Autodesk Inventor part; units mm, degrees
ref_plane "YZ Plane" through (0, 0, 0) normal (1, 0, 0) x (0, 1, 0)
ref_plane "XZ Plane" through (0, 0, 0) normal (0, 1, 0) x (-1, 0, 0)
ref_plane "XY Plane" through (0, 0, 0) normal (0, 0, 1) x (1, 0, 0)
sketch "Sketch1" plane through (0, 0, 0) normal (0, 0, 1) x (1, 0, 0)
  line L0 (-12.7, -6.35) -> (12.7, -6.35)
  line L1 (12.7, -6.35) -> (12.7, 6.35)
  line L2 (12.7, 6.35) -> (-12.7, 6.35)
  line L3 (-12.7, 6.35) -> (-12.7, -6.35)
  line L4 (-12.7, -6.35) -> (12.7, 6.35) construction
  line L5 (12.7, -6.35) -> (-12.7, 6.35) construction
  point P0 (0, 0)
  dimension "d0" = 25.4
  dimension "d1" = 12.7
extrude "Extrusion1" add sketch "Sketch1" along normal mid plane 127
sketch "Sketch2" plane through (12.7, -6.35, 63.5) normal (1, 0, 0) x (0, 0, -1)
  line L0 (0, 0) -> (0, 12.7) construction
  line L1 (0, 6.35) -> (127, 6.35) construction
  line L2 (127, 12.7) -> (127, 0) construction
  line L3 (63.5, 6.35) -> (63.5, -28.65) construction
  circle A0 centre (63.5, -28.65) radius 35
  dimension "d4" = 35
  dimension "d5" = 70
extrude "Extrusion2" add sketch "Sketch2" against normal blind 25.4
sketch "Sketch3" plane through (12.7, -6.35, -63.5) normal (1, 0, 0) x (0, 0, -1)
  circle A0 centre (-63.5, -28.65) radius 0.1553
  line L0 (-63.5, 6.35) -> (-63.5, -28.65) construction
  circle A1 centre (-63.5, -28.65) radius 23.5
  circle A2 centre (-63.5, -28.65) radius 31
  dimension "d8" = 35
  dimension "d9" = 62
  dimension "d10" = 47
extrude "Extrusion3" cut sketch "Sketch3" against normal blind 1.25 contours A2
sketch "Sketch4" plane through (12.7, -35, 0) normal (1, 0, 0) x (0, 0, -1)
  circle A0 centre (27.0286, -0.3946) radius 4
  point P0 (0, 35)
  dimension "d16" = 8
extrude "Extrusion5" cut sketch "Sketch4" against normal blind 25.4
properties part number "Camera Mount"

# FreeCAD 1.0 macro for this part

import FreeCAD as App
import Part
import Sketcher
from FreeCAD import Vector
Q = App.Units.Quantity


def add_polygon(sketch, points):
    """Adds a closed chain of lines whose ends are joined by coincident constraints."""
    first, n = sketch.GeometryCount, len(points)
    for a, b in zip(points, points[1:] + points[:1]):
        sketch.addGeometry(Part.LineSegment(App.Vector(*a, 0), App.Vector(*b, 0)), False)
    for i in range(n):
        sketch.addConstraint(Sketcher.Constraint("Coincident", first + i, 2, first + (i + 1) % n, 1))

doc = App.newDocument("Part")
body = doc.addObject("PartDesign::Body", "Body")

# Sketch on XY plane
sketch1 = doc.addObject("Sketcher::SketchObject", "Sketch")
body.addObject(sketch1)
sketch1.AttachmentSupport = (doc.XY_Plane, [""])
sketch1.MapMode = "FlatFace"
add_polygon(sketch1, [(-12.7, 6.35), (-12.7, -6.35), (12.7, -6.35), (12.7, 6.35)])  # lines 0-3
sketch1.addConstraint([
    Sketcher.Constraint("Vertical", 0),
    Sketcher.Constraint("Horizontal", 1),
    Sketcher.Constraint("Vertical", 2),
    Sketcher.Constraint("Horizontal", 3),
    Sketcher.Constraint("Symmetric", 0, 2, 2, 2, -1, 1),
    Sketcher.Constraint("DistanceX", 1, 1, 1, 2, Q("1 in")),
    Sketcher.Constraint("DistanceY", 0, 2, 0, 1, Q("0.5 in")),
])
pad1 = doc.addObject("PartDesign::Pad", "Pad")
body.addObject(pad1)
pad1.Profile = sketch1
pad1.Length = Q("5 in")
pad1.Midplane = True

# Sketch on YZ plane
sketch2 = doc.addObject("Sketcher::SketchObject", "Sketch001")
body.addObject(sketch2)
sketch2.AttachmentSupport = (doc.YZ_Plane, [""])
sketch2.MapMode = "FlatFace"
sketch2.AttachmentOffset = App.Placement(Vector(0, 0, 0.5 * 25.4), App.Rotation())
sketch2.addGeometry(Part.Circle(Vector(-35, 0, 0), Vector(0, 0, 1), 35), False)
sketch2.addConstraint([
    Sketcher.Constraint("PointOnObject", 0, 3, -1),
    Sketcher.Constraint("Diameter", 0, Q("2.7559 in")),
    Sketcher.Constraint("DistanceX", 0, 3, -1, 1, Q("35 mm")),
])
pad2 = doc.addObject("PartDesign::Pad", "Pad001")
body.addObject(pad2)
pad2.Profile = sketch2
pad2.Length = Q("1 in")
pad2.Reversed = True

# Sketch on YZ plane
sketch3 = doc.addObject("Sketcher::SketchObject", "Sketch002")
body.addObject(sketch3)
sketch3.AttachmentSupport = (doc.YZ_Plane, [""])
sketch3.MapMode = "FlatFace"
sketch3.AttachmentOffset = App.Placement(Vector(0, 0, 0.5 * 25.4), App.Rotation())
sketch3.addGeometry([
    Part.Circle(Vector(-35, 0, 0), Vector(0, 0, 1), 31),
    Part.Circle(Vector(-35, 0, 0), Vector(0, 0, 1), 23.5),
], False)
sketch3.addConstraint([
    Sketcher.Constraint("Coincident", 1, 3, 0, 3),
    Sketcher.Constraint("PointOnObject", 0, 3, -1),
    Sketcher.Constraint("Diameter", 1, Q("1.8504 in")),
    Sketcher.Constraint("Diameter", 0, Q("62 mm")),
    Sketcher.Constraint("DistanceX", 0, 3, -1, 1, Q("35 mm")),
])
pocket1 = doc.addObject("PartDesign::Pocket", "Pocket")
body.addObject(pocket1)
pocket1.Profile = sketch3
pocket1.Length = 1.25

# Sketch on YZ plane
sketch4 = doc.addObject("Sketcher::SketchObject", "Sketch003")
body.addObject(sketch4)
sketch4.AttachmentSupport = (doc.YZ_Plane, [""])
sketch4.MapMode = "FlatFace"
sketch4.AttachmentOffset = App.Placement(Vector(0, 0, 0.5 * 25.4), App.Rotation())
sketch4.addGeometry(Part.Circle(Vector(-35.3946, -27.0286, 0), Vector(0, 0, 1), 4), False)
sketch4.addConstraint([
    Sketcher.Constraint("Diameter", 0, Q("8 mm")),
    Sketcher.Constraint("DistanceX", 0, 3, -1, 1, Q("1.3935 in")),
    Sketcher.Constraint("DistanceY", 0, 3, -1, 1, Q("27.0286 mm")),
])
pocket2 = doc.addObject("PartDesign::Pocket", "Pocket001")
body.addObject(pocket2)
pocket2.Profile = sketch4
pocket2.Length = Q("1 in")

doc.recompute()
